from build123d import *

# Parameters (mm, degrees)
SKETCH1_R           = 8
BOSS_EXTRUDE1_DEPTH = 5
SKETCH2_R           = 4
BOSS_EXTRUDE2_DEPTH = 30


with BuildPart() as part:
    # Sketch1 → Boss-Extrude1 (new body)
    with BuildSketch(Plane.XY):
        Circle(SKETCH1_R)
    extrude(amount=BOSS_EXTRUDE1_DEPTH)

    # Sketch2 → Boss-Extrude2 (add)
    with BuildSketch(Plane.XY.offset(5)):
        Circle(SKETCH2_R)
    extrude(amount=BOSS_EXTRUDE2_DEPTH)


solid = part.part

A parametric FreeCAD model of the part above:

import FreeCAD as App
import Part
import Sketcher

doc = App.newDocument("Part")
body = doc.addObject("PartDesign::Body", "Body")

sketch1 = body.newObject("Sketcher::SketchObject", "Sketch")
sketch1.AttachmentSupport = (doc.getObject("XY_Plane"), [""])
sketch1.MapMode = "FlatFace"
sketch1.addGeometry(Part.Circle(App.Vector(0, 0, 0), App.Vector(0, 0, 1), 8), False)
sketch1.addConstraint(Sketcher.Constraint("Coincident", 0, 3, -1, 1))
sketch1.addConstraint(Sketcher.Constraint("Diameter", 0, 16.0))
pad1 = body.newObject("PartDesign::Pad", "Pad")
pad1.Profile = sketch1
pad1.Length = 5

sketch2 = body.newObject("Sketcher::SketchObject", "Sketch001")
sketch2.AttachmentSupport = (doc.getObject("XY_Plane"), [""])
sketch2.MapMode = "FlatFace"
sketch2.AttachmentOffset = App.Placement(App.Vector(0, 0, 5), App.Rotation())
sketch2.addGeometry(Part.Circle(App.Vector(0, 0, 0), App.Vector(0, 0, 1), 4), False)
sketch2.addConstraint(Sketcher.Constraint("Coincident", 0, 3, -1, 1))
sketch2.addConstraint(Sketcher.Constraint("Diameter", 0, 8.0))
pad2 = body.newObject("PartDesign::Pad", "Pad001")
pad2.Profile = sketch2
pad2.Length = 30

doc.recompute()
